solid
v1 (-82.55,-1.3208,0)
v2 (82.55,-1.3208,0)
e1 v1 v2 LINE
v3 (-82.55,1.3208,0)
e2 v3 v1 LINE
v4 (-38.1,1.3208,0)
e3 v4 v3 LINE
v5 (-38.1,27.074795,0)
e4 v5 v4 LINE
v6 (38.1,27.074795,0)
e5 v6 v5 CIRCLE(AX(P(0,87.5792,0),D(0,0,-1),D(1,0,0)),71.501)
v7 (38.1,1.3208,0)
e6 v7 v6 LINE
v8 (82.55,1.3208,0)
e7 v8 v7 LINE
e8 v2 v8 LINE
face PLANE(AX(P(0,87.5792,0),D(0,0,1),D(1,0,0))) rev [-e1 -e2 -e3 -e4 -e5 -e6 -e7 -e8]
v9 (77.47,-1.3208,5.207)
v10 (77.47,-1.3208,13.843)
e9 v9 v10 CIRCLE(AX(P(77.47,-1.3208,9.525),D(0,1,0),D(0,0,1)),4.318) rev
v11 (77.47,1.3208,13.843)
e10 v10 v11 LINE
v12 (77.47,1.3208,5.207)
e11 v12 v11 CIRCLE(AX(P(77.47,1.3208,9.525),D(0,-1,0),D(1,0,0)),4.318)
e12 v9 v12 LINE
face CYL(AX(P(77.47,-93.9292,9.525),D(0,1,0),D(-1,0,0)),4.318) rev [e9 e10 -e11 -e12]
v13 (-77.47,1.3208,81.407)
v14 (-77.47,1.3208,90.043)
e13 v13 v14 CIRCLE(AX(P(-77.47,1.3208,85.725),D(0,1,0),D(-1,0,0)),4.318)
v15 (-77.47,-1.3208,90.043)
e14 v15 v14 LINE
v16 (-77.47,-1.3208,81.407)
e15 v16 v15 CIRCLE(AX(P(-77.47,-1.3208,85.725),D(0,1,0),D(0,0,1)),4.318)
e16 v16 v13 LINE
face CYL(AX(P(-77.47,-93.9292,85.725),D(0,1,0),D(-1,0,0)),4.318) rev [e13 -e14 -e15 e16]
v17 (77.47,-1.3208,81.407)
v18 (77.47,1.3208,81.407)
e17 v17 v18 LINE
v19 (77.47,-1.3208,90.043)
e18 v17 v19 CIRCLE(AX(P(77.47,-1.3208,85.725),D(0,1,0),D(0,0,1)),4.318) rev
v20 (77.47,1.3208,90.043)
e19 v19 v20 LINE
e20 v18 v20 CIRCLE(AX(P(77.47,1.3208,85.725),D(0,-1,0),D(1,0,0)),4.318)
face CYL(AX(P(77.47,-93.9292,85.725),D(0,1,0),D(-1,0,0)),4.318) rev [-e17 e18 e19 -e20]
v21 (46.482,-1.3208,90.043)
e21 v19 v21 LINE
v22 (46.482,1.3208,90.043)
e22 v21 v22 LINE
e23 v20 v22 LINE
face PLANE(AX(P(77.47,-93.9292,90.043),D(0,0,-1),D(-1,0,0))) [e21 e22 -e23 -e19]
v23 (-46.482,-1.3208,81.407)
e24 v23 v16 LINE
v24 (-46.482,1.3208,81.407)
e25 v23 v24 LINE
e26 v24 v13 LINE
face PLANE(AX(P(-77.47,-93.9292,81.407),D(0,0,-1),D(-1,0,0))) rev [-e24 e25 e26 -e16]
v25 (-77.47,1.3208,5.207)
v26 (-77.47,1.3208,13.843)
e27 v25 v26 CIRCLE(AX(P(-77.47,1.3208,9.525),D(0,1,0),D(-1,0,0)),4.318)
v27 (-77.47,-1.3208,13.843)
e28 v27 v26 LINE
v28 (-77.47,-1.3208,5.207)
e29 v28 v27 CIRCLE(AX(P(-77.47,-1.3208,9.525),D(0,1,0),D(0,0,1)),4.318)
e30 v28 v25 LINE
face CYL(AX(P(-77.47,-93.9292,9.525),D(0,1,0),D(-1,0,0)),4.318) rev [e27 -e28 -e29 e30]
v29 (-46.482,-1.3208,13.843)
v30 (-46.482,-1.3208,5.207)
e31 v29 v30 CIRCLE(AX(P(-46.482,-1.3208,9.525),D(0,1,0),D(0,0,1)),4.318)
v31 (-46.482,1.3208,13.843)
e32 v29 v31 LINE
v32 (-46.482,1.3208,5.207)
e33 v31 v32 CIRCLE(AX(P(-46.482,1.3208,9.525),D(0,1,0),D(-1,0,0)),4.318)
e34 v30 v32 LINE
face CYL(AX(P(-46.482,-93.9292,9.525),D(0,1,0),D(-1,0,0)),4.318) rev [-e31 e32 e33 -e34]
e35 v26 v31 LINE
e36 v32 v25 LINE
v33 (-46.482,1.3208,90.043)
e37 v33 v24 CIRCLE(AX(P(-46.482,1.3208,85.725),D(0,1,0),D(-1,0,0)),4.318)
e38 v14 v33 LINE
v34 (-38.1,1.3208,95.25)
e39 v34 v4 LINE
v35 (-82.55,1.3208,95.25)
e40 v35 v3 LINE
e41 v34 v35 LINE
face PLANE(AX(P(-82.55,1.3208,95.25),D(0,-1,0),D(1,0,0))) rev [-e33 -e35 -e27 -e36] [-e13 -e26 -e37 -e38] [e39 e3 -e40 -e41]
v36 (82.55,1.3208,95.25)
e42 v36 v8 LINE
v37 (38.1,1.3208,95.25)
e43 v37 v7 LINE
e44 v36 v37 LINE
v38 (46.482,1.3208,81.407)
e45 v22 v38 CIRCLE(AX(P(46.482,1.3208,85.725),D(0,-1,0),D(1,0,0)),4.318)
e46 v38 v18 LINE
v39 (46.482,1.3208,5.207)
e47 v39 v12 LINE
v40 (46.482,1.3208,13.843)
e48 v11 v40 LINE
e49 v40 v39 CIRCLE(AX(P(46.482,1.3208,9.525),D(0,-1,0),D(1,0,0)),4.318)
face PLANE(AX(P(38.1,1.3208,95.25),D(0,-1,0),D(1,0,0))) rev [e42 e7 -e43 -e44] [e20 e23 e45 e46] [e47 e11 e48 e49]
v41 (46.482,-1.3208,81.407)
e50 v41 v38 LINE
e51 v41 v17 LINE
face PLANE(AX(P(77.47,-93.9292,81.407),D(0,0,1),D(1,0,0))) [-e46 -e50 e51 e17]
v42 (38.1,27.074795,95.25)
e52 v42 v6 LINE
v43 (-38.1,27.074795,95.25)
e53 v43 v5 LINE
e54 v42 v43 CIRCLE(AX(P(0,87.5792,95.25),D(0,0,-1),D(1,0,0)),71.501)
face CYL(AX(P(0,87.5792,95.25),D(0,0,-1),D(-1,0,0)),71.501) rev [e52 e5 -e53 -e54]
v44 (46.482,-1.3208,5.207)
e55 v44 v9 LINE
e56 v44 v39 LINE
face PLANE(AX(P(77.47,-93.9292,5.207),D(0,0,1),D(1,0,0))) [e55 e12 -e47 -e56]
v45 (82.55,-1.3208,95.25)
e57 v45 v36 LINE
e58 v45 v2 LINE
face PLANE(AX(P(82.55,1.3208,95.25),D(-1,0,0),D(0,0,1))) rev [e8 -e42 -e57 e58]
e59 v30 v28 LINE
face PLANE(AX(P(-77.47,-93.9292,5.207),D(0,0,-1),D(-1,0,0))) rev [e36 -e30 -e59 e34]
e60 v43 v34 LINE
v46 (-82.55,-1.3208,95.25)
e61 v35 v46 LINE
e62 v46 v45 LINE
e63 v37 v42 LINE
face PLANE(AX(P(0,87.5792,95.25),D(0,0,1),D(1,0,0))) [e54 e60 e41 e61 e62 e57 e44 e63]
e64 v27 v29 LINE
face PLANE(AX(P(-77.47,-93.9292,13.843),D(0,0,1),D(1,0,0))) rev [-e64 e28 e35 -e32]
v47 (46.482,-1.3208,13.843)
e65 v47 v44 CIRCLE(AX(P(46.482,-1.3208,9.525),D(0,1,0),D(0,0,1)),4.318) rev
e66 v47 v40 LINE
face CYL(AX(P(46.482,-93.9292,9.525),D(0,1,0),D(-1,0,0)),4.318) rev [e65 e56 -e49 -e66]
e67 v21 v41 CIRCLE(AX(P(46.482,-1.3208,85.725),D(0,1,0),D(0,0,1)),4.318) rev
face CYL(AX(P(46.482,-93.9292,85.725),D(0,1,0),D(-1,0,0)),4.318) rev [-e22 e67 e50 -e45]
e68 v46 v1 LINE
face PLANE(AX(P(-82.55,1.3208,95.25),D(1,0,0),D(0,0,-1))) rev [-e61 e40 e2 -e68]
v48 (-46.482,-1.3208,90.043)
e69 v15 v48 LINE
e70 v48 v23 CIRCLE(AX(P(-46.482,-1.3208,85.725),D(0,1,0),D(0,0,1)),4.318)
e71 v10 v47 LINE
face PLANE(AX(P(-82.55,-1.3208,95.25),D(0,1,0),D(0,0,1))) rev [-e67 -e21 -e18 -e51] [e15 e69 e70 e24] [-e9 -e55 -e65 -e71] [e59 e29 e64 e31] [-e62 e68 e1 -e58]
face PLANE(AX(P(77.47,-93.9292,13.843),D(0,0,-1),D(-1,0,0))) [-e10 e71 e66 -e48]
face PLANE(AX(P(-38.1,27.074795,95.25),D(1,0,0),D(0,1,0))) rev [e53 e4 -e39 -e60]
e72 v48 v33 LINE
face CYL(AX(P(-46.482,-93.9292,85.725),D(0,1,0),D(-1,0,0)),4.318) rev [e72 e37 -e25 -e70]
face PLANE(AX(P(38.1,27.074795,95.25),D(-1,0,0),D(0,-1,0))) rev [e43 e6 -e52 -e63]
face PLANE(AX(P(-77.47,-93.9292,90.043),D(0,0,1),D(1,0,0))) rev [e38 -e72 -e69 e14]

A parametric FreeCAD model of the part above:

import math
import FreeCAD as App
import Part
import Sketcher

V = App.Vector
Q = App.Units.Quantity

doc = App.newDocument("Part")
params = doc.addObject("Spreadsheet::Sheet", "Params")
for row, (alias, value) in enumerate([
    ("sketch1_width", "6.5 in"),
    ("sketch1_radius", "2.815 in"),
    ("sketch1_height", "0.104 in"),
    ("pad1_length", "3.75 in"),
    ("sketch2_radius", "0.17 in"),
    ("sketch2_width", "1.22 in"),
    ("pocket1_length", "3.75 in"),
], start=1):
    params.set(f"A{row}", alias)
    params.set(f"B{row}", "=" + value)
    params.setAlias(f"B{row}", alias)

body = doc.addObject("PartDesign::Body", "Body")

# Sketch on XY plane
sketch1 = doc.addObject("Sketcher::SketchObject", "Sketch")
body.addObject(sketch1)
sketch1.AttachmentSupport = (doc.XY_Plane, [""])
sketch1.MapMode = "FlatFace"
sketch1.addGeometry(Part.LineSegment(V(82.55, 1.3208, 0), V(38.1, 1.3208, 0)), False)
sketch1.addGeometry(Part.LineSegment(V(38.1, 1.3208, 0), V(38.1, 27.074795, 0)), False)
sketch1.addGeometry(Part.ArcOfCircle(Part.Circle(V(0, 87.5792, 0), V(0, 0, 1), 71.501), math.radians(-122.198876), math.radians(-57.801124)), False)
sketch1.addGeometry(Part.LineSegment(V(-38.1, 27.074795, 0), V(-38.1, 1.3208, 0)), False)
sketch1.addGeometry(Part.LineSegment(V(-38.1, 1.3208, 0), V(-82.55, 1.3208, 0)), False)
sketch1.addGeometry(Part.LineSegment(V(-82.55, 1.3208, 0), V(-82.55, -1.3208, 0)), False)
sketch1.addGeometry(Part.LineSegment(V(-82.55, -1.3208, 0), V(82.55, -1.3208, 0)), False)
sketch1.addGeometry(Part.LineSegment(V(82.55, -1.3208, 0), V(82.55, 1.3208, 0)), False)
sketch1.addConstraint(Sketcher.Constraint("Coincident", 0, 2, 1, 1))
sketch1.addConstraint(Sketcher.Constraint("Coincident", 1, 2, 2, 2))
sketch1.addConstraint(Sketcher.Constraint("Coincident", 2, 1, 3, 1))
sketch1.addConstraint(Sketcher.Constraint("Coincident", 3, 2, 4, 1))
sketch1.addConstraint(Sketcher.Constraint("Coincident", 4, 2, 5, 1))
sketch1.addConstraint(Sketcher.Constraint("Coincident", 5, 2, 6, 1))
sketch1.addConstraint(Sketcher.Constraint("Coincident", 6, 2, 7, 1))
sketch1.addConstraint(Sketcher.Constraint("Coincident", 7, 2, 0, 1))
sketch1.addConstraint(Sketcher.Constraint("Horizontal", 0))
sketch1.addConstraint(Sketcher.Constraint("Vertical", 1))
sketch1.addConstraint(Sketcher.Constraint("Vertical", 3))
sketch1.addConstraint(Sketcher.Constraint("Horizontal", 4))
sketch1.addConstraint(Sketcher.Constraint("Vertical", 5))
sketch1.addConstraint(Sketcher.Constraint("Horizontal", 6))
sketch1.addConstraint(Sketcher.Constraint("Vertical", 7))
sketch1.addConstraint(Sketcher.Constraint("Symmetric", 4, 2, 6, 2, -1, 1))
sketch1.addConstraint(Sketcher.Constraint("Symmetric", 1, 2, 2, 1, -2))
sketch1.addConstraint(Sketcher.Constraint("Horizontal", 0, 2, 3, 2))
sketch1.addConstraint(Sketcher.Constraint("DistanceX", 6, 1, 6, 2, Q("6.5 in")))
sketch1.addConstraint(Sketcher.Constraint("Radius", 2, Q("2.815 in")))
sketch1.addConstraint(Sketcher.Constraint("DistanceX", 2, 1, 1, 2, Q("3 in")))
sketch1.addConstraint(Sketcher.Constraint("DistanceY", 5, 2, 2, 3, Q("3.5 in")))
sketch1.addConstraint(Sketcher.Constraint("DistanceY", 5, 2, 5, 1, Q("0.104 in")))
sketch1.setExpression("Constraints[18]", "Params.sketch1_width")
sketch1.setExpression("Constraints[19]", "Params.sketch1_radius")
sketch1.setExpression("Constraints[22]", "Params.sketch1_height")
pad1 = doc.addObject("PartDesign::Pad", "Pad")
body.addObject(pad1)
pad1.Profile = sketch1
pad1.setExpression("Length", "Params.pad1_length")

# Sketch on XZ plane
sketch2 = doc.addObject("Sketcher::SketchObject", "Sketch001")
body.addObject(sketch2)
sketch2.AttachmentSupport = (doc.XZ_Plane, [""])
sketch2.MapMode = "FlatFace"
sketch2.AttachmentOffset = App.Placement(V(0, 0, -0.052 * 25.4), App.Rotation())
sketch2.addGeometry(Part.LineSegment(V(-46.482, 5.207, 0), V(-77.47, 5.207, 0)), False)
sketch2.addGeometry(Part.ArcOfCircle(Part.Circle(V(-77.47, 9.525, 0), V(0, 0, 1), 4.318), math.radians(90), math.radians(270)), False)
sketch2.addGeometry(Part.LineSegment(V(-77.47, 13.843, 0), V(-46.482, 13.843, 0)), False)
sketch2.addGeometry(Part.ArcOfCircle(Part.Circle(V(-46.482, 9.525, 0), V(0, 0, 1), 4.318), math.radians(-90), math.radians(90)), False)
sketch2.addGeometry(Part.LineSegment(V(-46.482, 81.407, 0), V(-77.47, 81.407, 0)), False)
sketch2.addGeometry(Part.ArcOfCircle(Part.Circle(V(-77.47, 85.725, 0), V(0, 0, 1), 4.318), math.radians(90), math.radians(270)), False)
sketch2.addGeometry(Part.LineSegment(V(-77.47, 90.043, 0), V(-46.482, 90.043, 0)), False)
sketch2.addGeometry(Part.ArcOfCircle(Part.Circle(V(-46.482, 85.725, 0), V(0, 0, 1), 4.318), math.radians(-90), math.radians(90)), False)
sketch2.addConstraint(Sketcher.Constraint("Tangent", 0, 2, 1, 2))
sketch2.addConstraint(Sketcher.Constraint("Tangent", 1, 1, 2, 1))
sketch2.addConstraint(Sketcher.Constraint("Tangent", 2, 2, 3, 2))
sketch2.addConstraint(Sketcher.Constraint("Tangent", 3, 1, 0, 1))
sketch2.addConstraint(Sketcher.Constraint("Tangent", 4, 2, 5, 2))
sketch2.addConstraint(Sketcher.Constraint("Tangent", 5, 1, 6, 1))
sketch2.addConstraint(Sketcher.Constraint("Tangent", 6, 2, 7, 2))
sketch2.addConstraint(Sketcher.Constraint("Tangent", 7, 1, 4, 1))
sketch2.addConstraint(Sketcher.Constraint("Horizontal", 0))
sketch2.addConstraint(Sketcher.Constraint("Horizontal", 2))
sketch2.addConstraint(Sketcher.Constraint("Horizontal", 4))
sketch2.addConstraint(Sketcher.Constraint("Horizontal", 6))
sketch2.addConstraint(Sketcher.Constraint("Equal", 3, 5))
sketch2.addConstraint(Sketcher.Constraint("Vertical", 1, 3, 5, 3))
sketch2.addConstraint(Sketcher.Constraint("Vertical", 3, 3, 7, 3))
sketch2.addConstraint(Sketcher.Constraint("Radius", 1, Q("0.17 in")))
sketch2.addConstraint(Sketcher.Constraint("DistanceY", 1, 3, 5, 3, Q("3 in")))
sketch2.addConstraint(Sketcher.Constraint("DistanceX", 0, 2, 0, 1, Q("1.22 in")))
sketch2.addConstraint(Sketcher.Constraint("DistanceX", 1, 3, -1, 1, Q("3.05 in")))
sketch2.addConstraint(Sketcher.Constraint("DistanceY", -1, 1, 1, 3, Q("0.375 in")))
sketch2.setExpression("Constraints[15]", "Params.sketch2_radius")
sketch2.setExpression("Constraints[17]", "Params.sketch2_width")
pocket1 = doc.addObject("PartDesign::Pocket", "Pocket")
body.addObject(pocket1)
pocket1.Profile = sketch2
pocket1.setExpression("Length", "Params.pocket1_length")
pocket1.Reversed = True
doc.recompute()

mirrored = doc.addObject("PartDesign::Mirrored", "Mirrored")
body.addObject(mirrored)
mirrored.Originals = [pocket1]
mirrored.MirrorPlane = (doc.YZ_Plane, [""])
body.Tip = mirrored

doc.recompute()
